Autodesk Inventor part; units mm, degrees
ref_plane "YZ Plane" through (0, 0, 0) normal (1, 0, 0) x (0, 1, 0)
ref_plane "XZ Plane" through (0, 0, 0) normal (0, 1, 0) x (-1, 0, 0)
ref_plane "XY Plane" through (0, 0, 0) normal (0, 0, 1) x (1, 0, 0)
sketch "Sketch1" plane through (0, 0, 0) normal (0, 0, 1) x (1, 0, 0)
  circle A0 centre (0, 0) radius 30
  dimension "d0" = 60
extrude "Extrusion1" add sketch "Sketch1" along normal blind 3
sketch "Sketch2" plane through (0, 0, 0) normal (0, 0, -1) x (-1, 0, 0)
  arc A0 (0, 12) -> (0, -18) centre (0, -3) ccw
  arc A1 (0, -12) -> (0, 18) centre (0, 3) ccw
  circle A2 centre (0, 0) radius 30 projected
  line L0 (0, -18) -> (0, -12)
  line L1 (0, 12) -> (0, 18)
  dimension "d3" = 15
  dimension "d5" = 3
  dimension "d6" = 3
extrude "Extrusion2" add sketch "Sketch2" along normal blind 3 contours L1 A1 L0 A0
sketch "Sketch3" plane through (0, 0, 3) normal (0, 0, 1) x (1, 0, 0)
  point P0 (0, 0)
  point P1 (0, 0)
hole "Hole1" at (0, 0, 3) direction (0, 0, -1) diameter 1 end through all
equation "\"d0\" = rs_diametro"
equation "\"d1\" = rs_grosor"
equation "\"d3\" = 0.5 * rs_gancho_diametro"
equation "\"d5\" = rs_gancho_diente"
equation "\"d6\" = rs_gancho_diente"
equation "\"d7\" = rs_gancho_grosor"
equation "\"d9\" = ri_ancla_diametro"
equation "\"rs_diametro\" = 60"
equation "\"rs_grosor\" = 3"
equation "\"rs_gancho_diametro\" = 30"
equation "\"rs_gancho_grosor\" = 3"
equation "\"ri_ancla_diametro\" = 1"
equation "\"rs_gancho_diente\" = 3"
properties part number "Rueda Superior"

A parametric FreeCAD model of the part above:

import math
import FreeCAD as App
import Part
import Sketcher
from FreeCAD import Vector

doc = App.newDocument("Part")
body = doc.addObject("PartDesign::Body", "Body")

sketch1 = body.newObject("Sketcher::SketchObject", "Sketch")
sketch1.AttachmentSupport = (doc.getObject("XY_Plane"), [""])
sketch1.MapMode = "FlatFace"
sketch1.addGeometry(Part.Circle(Vector(0, 0, 0), Vector(0, 0, 1), 30), False)
sketch1.addConstraint([
    Sketcher.Constraint("Coincident", 0, 3, -1, 1),
    Sketcher.Constraint("Diameter", 0, 60.0),
])
pad1 = body.newObject("PartDesign::Pad", "Pad")
pad1.Profile = sketch1
pad1.Length = 3

sketch2 = body.newObject("Sketcher::SketchObject", "Sketch001")
sketch2.AttachmentSupport = (doc.getObject("XY_Plane"), [""])
sketch2.MapMode = "FlatFace"
sketch2.addGeometry([
    Part.LineSegment(Vector(0, 18, 0), Vector(0, 12, 0)),
    Part.ArcOfCircle(Part.Circle(Vector(0, -3, 0), Vector(0, 0, 1), 15), math.radians(-90), math.radians(90)),
    Part.LineSegment(Vector(0, -18, 0), Vector(0, -12, 0)),
    Part.ArcOfCircle(Part.Circle(Vector(0, 3, 0), Vector(0, 0, 1), 15), math.radians(90), math.radians(270)),
], False)
sketch2.addConstraint([
    Sketcher.Constraint("Coincident", 0, 2, 1, 2),
    Sketcher.Constraint("Coincident", 1, 1, 2, 1),
    Sketcher.Constraint("Coincident", 2, 2, 3, 2),
    Sketcher.Constraint("Coincident", 3, 1, 0, 1),
    Sketcher.Constraint("Vertical", 0),
    Sketcher.Constraint("Vertical", 2),
    Sketcher.Constraint("Equal", 1, 3),
    Sketcher.Constraint("Symmetric", 1, 3, 3, 3, -1, 1),
    Sketcher.Constraint("PointOnObject", 1, 3, -2),
    Sketcher.Constraint("PointOnObject", 0, 2, -2),
    Sketcher.Constraint("PointOnObject", 1, 1, -2),
    Sketcher.Constraint("Radius", 1, 15.0),
    Sketcher.Constraint("DistanceY", 1, 3, -1, 1, 3.0),
])
pad2 = body.newObject("PartDesign::Pad", "Pad001")
pad2.Profile = sketch2
pad2.Length = 3
pad2.Reversed = True

sketch3 = body.newObject("Sketcher::SketchObject", "Sketch002")
sketch3.AttachmentSupport = (doc.getObject("XY_Plane"), [""])
sketch3.MapMode = "FlatFace"
sketch3.AttachmentOffset = App.Placement(Vector(0, 0, 3), App.Rotation())
sketch3.addGeometry(Part.Circle(Vector(0, 0, 0), Vector(0, 0, 1), 0.5), False)
sketch3.addConstraint([
    Sketcher.Constraint("Coincident", 0, 3, -1, 1),
    Sketcher.Constraint("Diameter", 0, 1.0),
])
doc.recompute()
hole = body.newObject("PartDesign::Hole", "Hole")
hole.Profile = sketch3
hole.ThreadType = "None"
hole.Diameter = 1
hole.DepthType = "ThroughAll"

doc.recompute()
